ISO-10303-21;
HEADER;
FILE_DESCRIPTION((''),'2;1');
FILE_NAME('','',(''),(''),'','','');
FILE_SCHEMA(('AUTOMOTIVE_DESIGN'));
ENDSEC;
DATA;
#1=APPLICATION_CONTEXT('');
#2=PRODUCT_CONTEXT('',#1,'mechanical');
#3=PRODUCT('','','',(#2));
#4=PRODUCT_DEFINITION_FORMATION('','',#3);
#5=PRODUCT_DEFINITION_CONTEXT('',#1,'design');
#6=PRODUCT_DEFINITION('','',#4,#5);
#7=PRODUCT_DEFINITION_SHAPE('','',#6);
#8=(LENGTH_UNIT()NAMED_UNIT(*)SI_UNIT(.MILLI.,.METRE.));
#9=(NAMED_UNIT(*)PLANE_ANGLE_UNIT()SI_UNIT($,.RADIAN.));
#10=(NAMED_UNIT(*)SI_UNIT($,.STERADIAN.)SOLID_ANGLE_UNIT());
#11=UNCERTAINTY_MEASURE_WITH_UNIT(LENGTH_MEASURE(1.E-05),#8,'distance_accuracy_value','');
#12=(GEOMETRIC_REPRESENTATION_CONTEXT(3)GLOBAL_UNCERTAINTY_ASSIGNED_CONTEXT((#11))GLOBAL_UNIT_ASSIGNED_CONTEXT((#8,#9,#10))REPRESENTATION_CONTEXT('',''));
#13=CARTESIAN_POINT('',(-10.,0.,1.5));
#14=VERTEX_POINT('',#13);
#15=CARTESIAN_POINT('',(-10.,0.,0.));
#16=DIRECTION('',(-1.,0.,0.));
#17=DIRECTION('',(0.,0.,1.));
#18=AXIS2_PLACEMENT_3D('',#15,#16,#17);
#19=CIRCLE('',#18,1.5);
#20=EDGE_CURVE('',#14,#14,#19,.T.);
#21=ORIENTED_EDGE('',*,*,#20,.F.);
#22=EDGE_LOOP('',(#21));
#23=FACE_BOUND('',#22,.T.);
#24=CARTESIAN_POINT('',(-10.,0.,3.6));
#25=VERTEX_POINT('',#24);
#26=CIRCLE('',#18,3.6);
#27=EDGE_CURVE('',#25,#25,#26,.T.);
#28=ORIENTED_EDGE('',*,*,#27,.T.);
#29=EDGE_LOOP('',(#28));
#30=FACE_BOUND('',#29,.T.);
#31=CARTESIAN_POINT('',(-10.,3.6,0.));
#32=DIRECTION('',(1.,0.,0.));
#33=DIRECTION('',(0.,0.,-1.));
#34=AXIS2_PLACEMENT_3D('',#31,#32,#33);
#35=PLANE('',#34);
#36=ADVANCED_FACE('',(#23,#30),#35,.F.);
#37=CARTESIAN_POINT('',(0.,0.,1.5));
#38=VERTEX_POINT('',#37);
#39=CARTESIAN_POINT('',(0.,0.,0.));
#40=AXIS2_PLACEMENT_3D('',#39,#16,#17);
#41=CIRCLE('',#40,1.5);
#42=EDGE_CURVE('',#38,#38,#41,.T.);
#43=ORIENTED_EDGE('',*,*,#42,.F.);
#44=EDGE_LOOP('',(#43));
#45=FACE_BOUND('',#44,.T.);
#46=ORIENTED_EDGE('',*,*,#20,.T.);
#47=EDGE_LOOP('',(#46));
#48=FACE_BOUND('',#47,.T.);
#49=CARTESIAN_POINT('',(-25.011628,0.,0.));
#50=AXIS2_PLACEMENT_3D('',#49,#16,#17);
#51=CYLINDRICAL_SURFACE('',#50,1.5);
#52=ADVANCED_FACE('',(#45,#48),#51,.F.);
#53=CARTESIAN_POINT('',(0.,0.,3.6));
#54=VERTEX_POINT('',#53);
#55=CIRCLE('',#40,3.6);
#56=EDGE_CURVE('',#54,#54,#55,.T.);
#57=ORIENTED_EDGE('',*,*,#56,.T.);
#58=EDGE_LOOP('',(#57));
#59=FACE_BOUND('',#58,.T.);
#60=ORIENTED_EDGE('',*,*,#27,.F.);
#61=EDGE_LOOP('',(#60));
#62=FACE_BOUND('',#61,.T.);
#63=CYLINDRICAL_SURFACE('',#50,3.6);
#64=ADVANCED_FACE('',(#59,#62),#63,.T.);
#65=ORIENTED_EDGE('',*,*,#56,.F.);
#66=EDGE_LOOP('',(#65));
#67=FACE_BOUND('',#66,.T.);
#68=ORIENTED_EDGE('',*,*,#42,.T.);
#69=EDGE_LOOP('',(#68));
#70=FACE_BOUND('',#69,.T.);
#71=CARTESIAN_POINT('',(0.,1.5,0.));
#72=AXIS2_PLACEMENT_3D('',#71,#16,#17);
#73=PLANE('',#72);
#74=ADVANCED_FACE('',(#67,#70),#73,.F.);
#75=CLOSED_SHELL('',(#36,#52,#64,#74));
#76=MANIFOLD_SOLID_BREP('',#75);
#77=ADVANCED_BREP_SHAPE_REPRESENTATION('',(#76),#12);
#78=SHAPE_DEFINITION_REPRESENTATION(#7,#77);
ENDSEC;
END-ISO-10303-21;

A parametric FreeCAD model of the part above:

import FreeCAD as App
import Part
import Sketcher

V = App.Vector
Q = App.Units.Quantity

doc = App.newDocument("Part")
body = doc.addObject("PartDesign::Body", "Body")

sketch1 = body.newObject("Sketcher::SketchObject", "Sketch")
sketch1.AttachmentSupport = (doc.getObject("XY_Plane"), [""])
sketch1.MapMode = "FlatFace"
sketch1.addGeometry(Part.LineSegment(V(-10, 3.6, 0), V(-10, 1.5, 0)), False)
sketch1.addGeometry(Part.LineSegment(V(-10, 1.5, 0), V(0, 1.5, 0)), False)
sketch1.addGeometry(Part.LineSegment(V(0, 1.5, 0), V(0, 3.6, 0)), False)
sketch1.addGeometry(Part.LineSegment(V(0, 3.6, 0), V(-10, 3.6, 0)), False)
sketch1.addConstraint(Sketcher.Constraint("Coincident", 0, 2, 1, 1))
sketch1.addConstraint(Sketcher.Constraint("Coincident", 1, 2, 2, 1))
sketch1.addConstraint(Sketcher.Constraint("Coincident", 2, 2, 3, 1))
sketch1.addConstraint(Sketcher.Constraint("Coincident", 3, 2, 0, 1))
sketch1.addConstraint(Sketcher.Constraint("Vertical", 0))
sketch1.addConstraint(Sketcher.Constraint("Horizontal", 1))
sketch1.addConstraint(Sketcher.Constraint("Vertical", 2))
sketch1.addConstraint(Sketcher.Constraint("Horizontal", 3))
sketch1.addConstraint(Sketcher.Constraint("PointOnObject", 1, 2, -2))
sketch1.addConstraint(Sketcher.Constraint("DistanceX", 1, 1, 1, 2, Q("10 mm")))
sketch1.addConstraint(Sketcher.Constraint("DistanceY", 0, 2, 0, 1, Q("2.1 mm")))
sketch1.addConstraint(Sketcher.Constraint("DistanceY", -1, 1, 0, 2, Q("1.5 mm")))
revolution = body.newObject("PartDesign::Revolution", "Revolution")
revolution.Profile = sketch1
revolution.ReferenceAxis = (sketch1, ["H_Axis"])
revolution.Angle = 360

doc.recompute()
